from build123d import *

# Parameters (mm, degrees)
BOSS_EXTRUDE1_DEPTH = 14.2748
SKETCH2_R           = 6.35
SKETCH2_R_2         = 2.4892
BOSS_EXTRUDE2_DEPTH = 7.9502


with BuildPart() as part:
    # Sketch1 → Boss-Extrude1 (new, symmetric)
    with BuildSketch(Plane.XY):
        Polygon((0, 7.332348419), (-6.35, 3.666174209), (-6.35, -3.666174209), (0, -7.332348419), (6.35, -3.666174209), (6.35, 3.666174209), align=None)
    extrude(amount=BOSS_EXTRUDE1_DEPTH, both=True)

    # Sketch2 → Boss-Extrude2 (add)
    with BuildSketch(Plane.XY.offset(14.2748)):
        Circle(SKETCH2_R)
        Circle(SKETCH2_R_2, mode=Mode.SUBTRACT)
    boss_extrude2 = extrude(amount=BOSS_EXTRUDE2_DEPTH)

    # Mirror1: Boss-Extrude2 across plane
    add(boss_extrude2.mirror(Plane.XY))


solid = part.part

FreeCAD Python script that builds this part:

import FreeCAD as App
import Part
import Sketcher

V = App.Vector
Q = App.Units.Quantity


def add_polygon(sketch, points):
    """Adds a closed chain of lines whose ends are joined by coincident constraints."""
    first, n = sketch.GeometryCount, len(points)
    for a, b in zip(points, points[1:] + points[:1]):
        sketch.addGeometry(Part.LineSegment(App.Vector(*a, 0), App.Vector(*b, 0)), False)
    for i in range(n):
        sketch.addConstraint(Sketcher.Constraint("Coincident", first + i, 2, first + (i + 1) % n, 1))

doc = App.newDocument("Part")
body = doc.addObject("PartDesign::Body", "Body")

# Sketch on XY plane
sketch1 = doc.addObject("Sketcher::SketchObject", "Sketch")
body.addObject(sketch1)
sketch1.AttachmentSupport = (doc.XY_Plane, [""])
sketch1.MapMode = "FlatFace"
add_polygon(sketch1, [(0, 7), (-6, 4), (-6, -4), (0, -7), (6, -4), (6, 4)])  # lines 0-5
sketch1.addConstraint([
    Sketcher.Constraint("Vertical", 1),
    Sketcher.Constraint("Vertical", 4),
    Sketcher.Constraint("Symmetric", 0, 2, 3, 2, -1, 1),
    Sketcher.Constraint("Symmetric", 2, 2, 5, 2, -1, 1),
    Sketcher.Constraint("PointOnObject", 2, 2, -2),
    Sketcher.Constraint("Parallel", 2, 5),
    Sketcher.Constraint("Horizontal", 1, 2, 3, 2),
    Sketcher.Constraint("Angle", 0, Q("-150 deg")),
    Sketcher.Constraint("DistanceX", 1, 2, 3, 2, Q("0.5 in")),
    Sketcher.Constraint("DistanceY", 1, 2, 1, 1, 7.332348),
])
pad1 = doc.addObject("PartDesign::Pad", "Pad")
body.addObject(pad1)
pad1.Profile = sketch1
pad1.Length = Q("1.124 in")
pad1.Midplane = True

# Sketch on XY plane
sketch2 = doc.addObject("Sketcher::SketchObject", "Sketch001")
body.addObject(sketch2)
sketch2.AttachmentSupport = (doc.XY_Plane, [""])
sketch2.MapMode = "FlatFace"
sketch2.AttachmentOffset = App.Placement(V(0, 0, 0.562 * 25.4), App.Rotation())
sketch2.addGeometry([
    Part.Circle(V(0, 0, 0), V(0, 0, 1), 6.3),
    Part.Circle(V(0, 0, 0), V(0, 0, 1), 2.5),
], False)
sketch2.addConstraint([
    Sketcher.Constraint("Coincident", 0, 3, -1, 1),
    Sketcher.Constraint("Coincident", 1, 3, -1, 1),
    Sketcher.Constraint("Diameter", 0, Q("0.5 in")),
    Sketcher.Constraint("Diameter", 1, Q("0.196 in")),
])
pad2 = doc.addObject("PartDesign::Pad", "Pad001")
body.addObject(pad2)
pad2.Profile = sketch2
pad2.Length = Q("0.313 in")
doc.recompute()

mirrored = doc.addObject("PartDesign::Mirrored", "Mirrored")
body.addObject(mirrored)
mirrored.Originals = [pad2]
mirrored.MirrorPlane = (doc.XY_Plane, [""])
body.Tip = mirrored

doc.recompute()
